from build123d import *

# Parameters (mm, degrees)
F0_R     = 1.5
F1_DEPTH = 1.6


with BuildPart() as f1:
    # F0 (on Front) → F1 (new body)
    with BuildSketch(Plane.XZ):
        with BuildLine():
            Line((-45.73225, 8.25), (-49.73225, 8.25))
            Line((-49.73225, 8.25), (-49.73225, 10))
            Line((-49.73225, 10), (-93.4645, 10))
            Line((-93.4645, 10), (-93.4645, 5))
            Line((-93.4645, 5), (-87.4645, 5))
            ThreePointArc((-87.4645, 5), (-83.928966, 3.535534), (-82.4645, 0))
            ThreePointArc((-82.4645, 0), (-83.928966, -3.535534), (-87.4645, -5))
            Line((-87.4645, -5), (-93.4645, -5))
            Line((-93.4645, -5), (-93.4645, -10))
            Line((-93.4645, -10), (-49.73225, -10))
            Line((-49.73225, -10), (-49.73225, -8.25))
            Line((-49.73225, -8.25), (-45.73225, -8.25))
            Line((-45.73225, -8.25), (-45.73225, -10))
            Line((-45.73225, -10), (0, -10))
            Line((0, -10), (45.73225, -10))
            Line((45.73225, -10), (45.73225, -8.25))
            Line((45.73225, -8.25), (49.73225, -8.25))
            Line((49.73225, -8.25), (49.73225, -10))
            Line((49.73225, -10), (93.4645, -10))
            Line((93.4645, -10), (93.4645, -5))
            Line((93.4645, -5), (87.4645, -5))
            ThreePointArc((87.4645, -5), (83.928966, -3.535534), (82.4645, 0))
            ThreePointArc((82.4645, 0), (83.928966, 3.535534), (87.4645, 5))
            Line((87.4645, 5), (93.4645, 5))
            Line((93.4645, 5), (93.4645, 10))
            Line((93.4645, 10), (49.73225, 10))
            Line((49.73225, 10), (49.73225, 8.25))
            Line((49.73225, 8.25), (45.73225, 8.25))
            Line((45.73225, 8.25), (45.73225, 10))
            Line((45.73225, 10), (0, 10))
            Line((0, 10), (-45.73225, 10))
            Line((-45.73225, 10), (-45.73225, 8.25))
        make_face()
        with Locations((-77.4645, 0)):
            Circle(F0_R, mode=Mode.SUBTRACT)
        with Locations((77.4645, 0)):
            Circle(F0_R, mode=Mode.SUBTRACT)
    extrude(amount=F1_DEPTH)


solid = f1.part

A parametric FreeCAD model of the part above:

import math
import FreeCAD as App
import Part
import Sketcher
from FreeCAD import Vector

doc = App.newDocument("Part")
body = doc.addObject("PartDesign::Body", "Body")

sketch1 = body.newObject("Sketcher::SketchObject", "Sketch")
sketch1.AttachmentSupport = (doc.getObject("XZ_Plane"), [""])
sketch1.MapMode = "FlatFace"
sketch1.addGeometry([
    Part.LineSegment(Vector(-45.7, 8.2, 0), Vector(-49.7, 8.2, 0)),
    Part.LineSegment(Vector(-49.7, 8.2, 0), Vector(-49.7, 10, 0)),
    Part.LineSegment(Vector(-49.7, 10, 0), Vector(-93.5, 10, 0)),
    Part.LineSegment(Vector(-93.5, 10, 0), Vector(-93.5, 5, 0)),
    Part.LineSegment(Vector(-93.5, 5, 0), Vector(-87.5, 5, 0)),
    Part.ArcOfCircle(Part.Circle(Vector(-87.5, 0, 0), Vector(0, 0, 1), 5), math.radians(0), math.radians(90)),
    Part.ArcOfCircle(Part.Circle(Vector(-87.5, 0, 0), Vector(0, 0, 1), 5), math.radians(-90), math.radians(0)),
    Part.LineSegment(Vector(-87.5, -5, 0), Vector(-93.5, -5, 0)),
    Part.LineSegment(Vector(-93.5, -5, 0), Vector(-93.5, -10, 0)),
    Part.LineSegment(Vector(-93.5, -10, 0), Vector(-49.7, -10, 0)),
    Part.LineSegment(Vector(-49.7, -10, 0), Vector(-49.7, -8.2, 0)),
    Part.LineSegment(Vector(-49.7, -8.2, 0), Vector(-45.7, -8.2, 0)),
    Part.LineSegment(Vector(-45.7, -8.2, 0), Vector(-45.7, -10, 0)),
    Part.LineSegment(Vector(-45.7, -10, 0), Vector(45.7, -10, 0)),
    Part.LineSegment(Vector(45.7, -10, 0), Vector(45.7, -8.2, 0)),
    Part.LineSegment(Vector(45.7, -8.2, 0), Vector(49.7, -8.2, 0)),
    Part.LineSegment(Vector(49.7, -8.2, 0), Vector(49.7, -10, 0)),
    Part.LineSegment(Vector(49.7, -10, 0), Vector(93.5, -10, 0)),
    Part.LineSegment(Vector(93.5, -10, 0), Vector(93.5, -5, 0)),
    Part.LineSegment(Vector(93.5, -5, 0), Vector(87.5, -5, 0)),
    Part.ArcOfCircle(Part.Circle(Vector(87.5, 0, 0), Vector(0, 0, 1), 5), math.radians(180), math.radians(270)),
    Part.ArcOfCircle(Part.Circle(Vector(87.5, 0, 0), Vector(0, 0, 1), 5), math.radians(90), math.radians(180)),
    Part.LineSegment(Vector(87.5, 5, 0), Vector(93.5, 5, 0)),
    Part.LineSegment(Vector(93.5, 5, 0), Vector(93.5, 10, 0)),
    Part.LineSegment(Vector(93.5, 10, 0), Vector(49.7, 10, 0)),
    Part.LineSegment(Vector(49.7, 10, 0), Vector(49.7, 8.2, 0)),
    Part.LineSegment(Vector(49.7, 8.2, 0), Vector(45.7, 8.2, 0)),
    Part.LineSegment(Vector(45.7, 8.2, 0), Vector(45.7, 10, 0)),
    Part.LineSegment(Vector(45.7, 10, 0), Vector(-45.7, 10, 0)),
    Part.LineSegment(Vector(-45.7, 10, 0), Vector(-45.7, 8.2, 0)),
    Part.Circle(Vector(-77.5, 0, 0), Vector(0, 0, 1), 1.5),
    Part.Circle(Vector(77.5, 0, 0), Vector(0, 0, 1), 1.5),
], False)
sketch1.addConstraint([
    Sketcher.Constraint("Coincident", 0, 2, 1, 1),
    Sketcher.Constraint("Coincident", 1, 2, 2, 1),
    Sketcher.Constraint("Coincident", 2, 2, 3, 1),
    Sketcher.Constraint("Coincident", 3, 2, 4, 1),
    Sketcher.Constraint("Tangent", 4, 2, 5, 2),
    Sketcher.Constraint("Tangent", 5, 1, 6, 2),
    Sketcher.Constraint("Tangent", 6, 1, 7, 1),
    Sketcher.Constraint("Coincident", 7, 2, 8, 1),
    Sketcher.Constraint("Coincident", 8, 2, 9, 1),
    Sketcher.Constraint("Coincident", 9, 2, 10, 1),
    Sketcher.Constraint("Coincident", 10, 2, 11, 1),
    Sketcher.Constraint("Coincident", 11, 2, 12, 1),
    Sketcher.Constraint("Coincident", 12, 2, 13, 1),
    Sketcher.Constraint("Coincident", 13, 2, 14, 1),
    Sketcher.Constraint("Coincident", 14, 2, 15, 1),
    Sketcher.Constraint("Coincident", 15, 2, 16, 1),
    Sketcher.Constraint("Coincident", 16, 2, 17, 1),
    Sketcher.Constraint("Coincident", 17, 2, 18, 1),
    Sketcher.Constraint("Coincident", 18, 2, 19, 1),
    Sketcher.Constraint("Tangent", 19, 2, 20, 2),
    Sketcher.Constraint("Tangent", 20, 1, 21, 2),
    Sketcher.Constraint("Tangent", 21, 1, 22, 1),
    Sketcher.Constraint("Coincident", 22, 2, 23, 1),
    Sketcher.Constraint("Coincident", 23, 2, 24, 1),
    Sketcher.Constraint("Coincident", 24, 2, 25, 1),
    Sketcher.Constraint("Coincident", 25, 2, 26, 1),
    Sketcher.Constraint("Coincident", 26, 2, 27, 1),
    Sketcher.Constraint("Coincident", 27, 2, 28, 1),
    Sketcher.Constraint("Coincident", 28, 2, 29, 1),
    Sketcher.Constraint("Coincident", 29, 2, 0, 1),
    Sketcher.Constraint("Horizontal", 0),
    Sketcher.Constraint("Vertical", 1),
    Sketcher.Constraint("Horizontal", 2),
    Sketcher.Constraint("Vertical", 3),
    Sketcher.Constraint("Horizontal", 4),
    Sketcher.Constraint("Horizontal", 7),
    Sketcher.Constraint("Vertical", 8),
    Sketcher.Constraint("Horizontal", 9),
    Sketcher.Constraint("Vertical", 10),
    Sketcher.Constraint("Horizontal", 11),
    Sketcher.Constraint("Vertical", 12),
    Sketcher.Constraint("Horizontal", 13),
    Sketcher.Constraint("Vertical", 14),
    Sketcher.Constraint("Horizontal", 15),
    Sketcher.Constraint("Vertical", 16),
    Sketcher.Constraint("Horizontal", 17),
    Sketcher.Constraint("Vertical", 18),
    Sketcher.Constraint("Horizontal", 19),
    Sketcher.Constraint("Horizontal", 22),
    Sketcher.Constraint("Vertical", 23),
    Sketcher.Constraint("Horizontal", 24),
    Sketcher.Constraint("Vertical", 25),
    Sketcher.Constraint("Horizontal", 26),
    Sketcher.Constraint("Vertical", 27),
    Sketcher.Constraint("Horizontal", 28),
    Sketcher.Constraint("Vertical", 29),
    Sketcher.Constraint("Equal", 5, 6),
    Sketcher.Constraint("Equal", 6, 20),
    Sketcher.Constraint("Equal", 20, 21),
    Sketcher.Constraint("Equal", 30, 31),
    Sketcher.Constraint("Symmetric", 5, 3, 20, 3, -1, 1),
    Sketcher.Constraint("Symmetric", 30, 3, 31, 3, -1, 1),
    Sketcher.Constraint("Symmetric", 0, 2, 15, 2, -1, 1),
    Sketcher.Constraint("Symmetric", 2, 2, 17, 2, -1, 1),
    Sketcher.Constraint("Symmetric", 8, 2, 23, 2, -1, 1),
    Sketcher.Constraint("Symmetric", 10, 2, 25, 2, -1, 1),
    Sketcher.Constraint("Symmetric", 12, 2, 27, 2, -1, 1),
    Sketcher.Constraint("Symmetric", 11, 2, 14, 2, -2),
    Sketcher.Constraint("Symmetric", 9, 2, 16, 2, -2),
    Sketcher.Constraint("Symmetric", 7, 2, 18, 2, -2),
    Sketcher.Constraint("PointOnObject", 30, 3, -1),
    Sketcher.Constraint("PointOnObject", 5, 1, -1),
    Sketcher.Constraint("PointOnObject", 20, 1, -1),
    Sketcher.Constraint("Horizontal", 9, 2, 12, 2),
    Sketcher.Constraint("Vertical", 12, 2, 28, 2),
    Sketcher.Constraint("Diameter", 30, 3.0),
    Sketcher.Constraint("Radius", 5, 5.0),
    Sketcher.Constraint("DistanceX", 0, 2, 0, 1, 4.0),
    Sketcher.Constraint("DistanceX", 4, 1, 4, 2, 6.0),
    Sketcher.Constraint("DistanceY", 3, 2, 3, 1, 5.0),
    Sketcher.Constraint("DistanceX", 5, 3, 30, 3, 10.0),
    Sketcher.Constraint("DistanceY", 1, 1, 1, 2, 1.75),
    Sketcher.Constraint("DistanceX", 13, 1, 13, 2, 91.4645),
    Sketcher.Constraint("DistanceX", 5, 3, 20, 3, 174.928999),
])
pad1 = body.newObject("PartDesign::Pad", "Pad")
pad1.Profile = sketch1
pad1.Length = 1.6

doc.recompute()
